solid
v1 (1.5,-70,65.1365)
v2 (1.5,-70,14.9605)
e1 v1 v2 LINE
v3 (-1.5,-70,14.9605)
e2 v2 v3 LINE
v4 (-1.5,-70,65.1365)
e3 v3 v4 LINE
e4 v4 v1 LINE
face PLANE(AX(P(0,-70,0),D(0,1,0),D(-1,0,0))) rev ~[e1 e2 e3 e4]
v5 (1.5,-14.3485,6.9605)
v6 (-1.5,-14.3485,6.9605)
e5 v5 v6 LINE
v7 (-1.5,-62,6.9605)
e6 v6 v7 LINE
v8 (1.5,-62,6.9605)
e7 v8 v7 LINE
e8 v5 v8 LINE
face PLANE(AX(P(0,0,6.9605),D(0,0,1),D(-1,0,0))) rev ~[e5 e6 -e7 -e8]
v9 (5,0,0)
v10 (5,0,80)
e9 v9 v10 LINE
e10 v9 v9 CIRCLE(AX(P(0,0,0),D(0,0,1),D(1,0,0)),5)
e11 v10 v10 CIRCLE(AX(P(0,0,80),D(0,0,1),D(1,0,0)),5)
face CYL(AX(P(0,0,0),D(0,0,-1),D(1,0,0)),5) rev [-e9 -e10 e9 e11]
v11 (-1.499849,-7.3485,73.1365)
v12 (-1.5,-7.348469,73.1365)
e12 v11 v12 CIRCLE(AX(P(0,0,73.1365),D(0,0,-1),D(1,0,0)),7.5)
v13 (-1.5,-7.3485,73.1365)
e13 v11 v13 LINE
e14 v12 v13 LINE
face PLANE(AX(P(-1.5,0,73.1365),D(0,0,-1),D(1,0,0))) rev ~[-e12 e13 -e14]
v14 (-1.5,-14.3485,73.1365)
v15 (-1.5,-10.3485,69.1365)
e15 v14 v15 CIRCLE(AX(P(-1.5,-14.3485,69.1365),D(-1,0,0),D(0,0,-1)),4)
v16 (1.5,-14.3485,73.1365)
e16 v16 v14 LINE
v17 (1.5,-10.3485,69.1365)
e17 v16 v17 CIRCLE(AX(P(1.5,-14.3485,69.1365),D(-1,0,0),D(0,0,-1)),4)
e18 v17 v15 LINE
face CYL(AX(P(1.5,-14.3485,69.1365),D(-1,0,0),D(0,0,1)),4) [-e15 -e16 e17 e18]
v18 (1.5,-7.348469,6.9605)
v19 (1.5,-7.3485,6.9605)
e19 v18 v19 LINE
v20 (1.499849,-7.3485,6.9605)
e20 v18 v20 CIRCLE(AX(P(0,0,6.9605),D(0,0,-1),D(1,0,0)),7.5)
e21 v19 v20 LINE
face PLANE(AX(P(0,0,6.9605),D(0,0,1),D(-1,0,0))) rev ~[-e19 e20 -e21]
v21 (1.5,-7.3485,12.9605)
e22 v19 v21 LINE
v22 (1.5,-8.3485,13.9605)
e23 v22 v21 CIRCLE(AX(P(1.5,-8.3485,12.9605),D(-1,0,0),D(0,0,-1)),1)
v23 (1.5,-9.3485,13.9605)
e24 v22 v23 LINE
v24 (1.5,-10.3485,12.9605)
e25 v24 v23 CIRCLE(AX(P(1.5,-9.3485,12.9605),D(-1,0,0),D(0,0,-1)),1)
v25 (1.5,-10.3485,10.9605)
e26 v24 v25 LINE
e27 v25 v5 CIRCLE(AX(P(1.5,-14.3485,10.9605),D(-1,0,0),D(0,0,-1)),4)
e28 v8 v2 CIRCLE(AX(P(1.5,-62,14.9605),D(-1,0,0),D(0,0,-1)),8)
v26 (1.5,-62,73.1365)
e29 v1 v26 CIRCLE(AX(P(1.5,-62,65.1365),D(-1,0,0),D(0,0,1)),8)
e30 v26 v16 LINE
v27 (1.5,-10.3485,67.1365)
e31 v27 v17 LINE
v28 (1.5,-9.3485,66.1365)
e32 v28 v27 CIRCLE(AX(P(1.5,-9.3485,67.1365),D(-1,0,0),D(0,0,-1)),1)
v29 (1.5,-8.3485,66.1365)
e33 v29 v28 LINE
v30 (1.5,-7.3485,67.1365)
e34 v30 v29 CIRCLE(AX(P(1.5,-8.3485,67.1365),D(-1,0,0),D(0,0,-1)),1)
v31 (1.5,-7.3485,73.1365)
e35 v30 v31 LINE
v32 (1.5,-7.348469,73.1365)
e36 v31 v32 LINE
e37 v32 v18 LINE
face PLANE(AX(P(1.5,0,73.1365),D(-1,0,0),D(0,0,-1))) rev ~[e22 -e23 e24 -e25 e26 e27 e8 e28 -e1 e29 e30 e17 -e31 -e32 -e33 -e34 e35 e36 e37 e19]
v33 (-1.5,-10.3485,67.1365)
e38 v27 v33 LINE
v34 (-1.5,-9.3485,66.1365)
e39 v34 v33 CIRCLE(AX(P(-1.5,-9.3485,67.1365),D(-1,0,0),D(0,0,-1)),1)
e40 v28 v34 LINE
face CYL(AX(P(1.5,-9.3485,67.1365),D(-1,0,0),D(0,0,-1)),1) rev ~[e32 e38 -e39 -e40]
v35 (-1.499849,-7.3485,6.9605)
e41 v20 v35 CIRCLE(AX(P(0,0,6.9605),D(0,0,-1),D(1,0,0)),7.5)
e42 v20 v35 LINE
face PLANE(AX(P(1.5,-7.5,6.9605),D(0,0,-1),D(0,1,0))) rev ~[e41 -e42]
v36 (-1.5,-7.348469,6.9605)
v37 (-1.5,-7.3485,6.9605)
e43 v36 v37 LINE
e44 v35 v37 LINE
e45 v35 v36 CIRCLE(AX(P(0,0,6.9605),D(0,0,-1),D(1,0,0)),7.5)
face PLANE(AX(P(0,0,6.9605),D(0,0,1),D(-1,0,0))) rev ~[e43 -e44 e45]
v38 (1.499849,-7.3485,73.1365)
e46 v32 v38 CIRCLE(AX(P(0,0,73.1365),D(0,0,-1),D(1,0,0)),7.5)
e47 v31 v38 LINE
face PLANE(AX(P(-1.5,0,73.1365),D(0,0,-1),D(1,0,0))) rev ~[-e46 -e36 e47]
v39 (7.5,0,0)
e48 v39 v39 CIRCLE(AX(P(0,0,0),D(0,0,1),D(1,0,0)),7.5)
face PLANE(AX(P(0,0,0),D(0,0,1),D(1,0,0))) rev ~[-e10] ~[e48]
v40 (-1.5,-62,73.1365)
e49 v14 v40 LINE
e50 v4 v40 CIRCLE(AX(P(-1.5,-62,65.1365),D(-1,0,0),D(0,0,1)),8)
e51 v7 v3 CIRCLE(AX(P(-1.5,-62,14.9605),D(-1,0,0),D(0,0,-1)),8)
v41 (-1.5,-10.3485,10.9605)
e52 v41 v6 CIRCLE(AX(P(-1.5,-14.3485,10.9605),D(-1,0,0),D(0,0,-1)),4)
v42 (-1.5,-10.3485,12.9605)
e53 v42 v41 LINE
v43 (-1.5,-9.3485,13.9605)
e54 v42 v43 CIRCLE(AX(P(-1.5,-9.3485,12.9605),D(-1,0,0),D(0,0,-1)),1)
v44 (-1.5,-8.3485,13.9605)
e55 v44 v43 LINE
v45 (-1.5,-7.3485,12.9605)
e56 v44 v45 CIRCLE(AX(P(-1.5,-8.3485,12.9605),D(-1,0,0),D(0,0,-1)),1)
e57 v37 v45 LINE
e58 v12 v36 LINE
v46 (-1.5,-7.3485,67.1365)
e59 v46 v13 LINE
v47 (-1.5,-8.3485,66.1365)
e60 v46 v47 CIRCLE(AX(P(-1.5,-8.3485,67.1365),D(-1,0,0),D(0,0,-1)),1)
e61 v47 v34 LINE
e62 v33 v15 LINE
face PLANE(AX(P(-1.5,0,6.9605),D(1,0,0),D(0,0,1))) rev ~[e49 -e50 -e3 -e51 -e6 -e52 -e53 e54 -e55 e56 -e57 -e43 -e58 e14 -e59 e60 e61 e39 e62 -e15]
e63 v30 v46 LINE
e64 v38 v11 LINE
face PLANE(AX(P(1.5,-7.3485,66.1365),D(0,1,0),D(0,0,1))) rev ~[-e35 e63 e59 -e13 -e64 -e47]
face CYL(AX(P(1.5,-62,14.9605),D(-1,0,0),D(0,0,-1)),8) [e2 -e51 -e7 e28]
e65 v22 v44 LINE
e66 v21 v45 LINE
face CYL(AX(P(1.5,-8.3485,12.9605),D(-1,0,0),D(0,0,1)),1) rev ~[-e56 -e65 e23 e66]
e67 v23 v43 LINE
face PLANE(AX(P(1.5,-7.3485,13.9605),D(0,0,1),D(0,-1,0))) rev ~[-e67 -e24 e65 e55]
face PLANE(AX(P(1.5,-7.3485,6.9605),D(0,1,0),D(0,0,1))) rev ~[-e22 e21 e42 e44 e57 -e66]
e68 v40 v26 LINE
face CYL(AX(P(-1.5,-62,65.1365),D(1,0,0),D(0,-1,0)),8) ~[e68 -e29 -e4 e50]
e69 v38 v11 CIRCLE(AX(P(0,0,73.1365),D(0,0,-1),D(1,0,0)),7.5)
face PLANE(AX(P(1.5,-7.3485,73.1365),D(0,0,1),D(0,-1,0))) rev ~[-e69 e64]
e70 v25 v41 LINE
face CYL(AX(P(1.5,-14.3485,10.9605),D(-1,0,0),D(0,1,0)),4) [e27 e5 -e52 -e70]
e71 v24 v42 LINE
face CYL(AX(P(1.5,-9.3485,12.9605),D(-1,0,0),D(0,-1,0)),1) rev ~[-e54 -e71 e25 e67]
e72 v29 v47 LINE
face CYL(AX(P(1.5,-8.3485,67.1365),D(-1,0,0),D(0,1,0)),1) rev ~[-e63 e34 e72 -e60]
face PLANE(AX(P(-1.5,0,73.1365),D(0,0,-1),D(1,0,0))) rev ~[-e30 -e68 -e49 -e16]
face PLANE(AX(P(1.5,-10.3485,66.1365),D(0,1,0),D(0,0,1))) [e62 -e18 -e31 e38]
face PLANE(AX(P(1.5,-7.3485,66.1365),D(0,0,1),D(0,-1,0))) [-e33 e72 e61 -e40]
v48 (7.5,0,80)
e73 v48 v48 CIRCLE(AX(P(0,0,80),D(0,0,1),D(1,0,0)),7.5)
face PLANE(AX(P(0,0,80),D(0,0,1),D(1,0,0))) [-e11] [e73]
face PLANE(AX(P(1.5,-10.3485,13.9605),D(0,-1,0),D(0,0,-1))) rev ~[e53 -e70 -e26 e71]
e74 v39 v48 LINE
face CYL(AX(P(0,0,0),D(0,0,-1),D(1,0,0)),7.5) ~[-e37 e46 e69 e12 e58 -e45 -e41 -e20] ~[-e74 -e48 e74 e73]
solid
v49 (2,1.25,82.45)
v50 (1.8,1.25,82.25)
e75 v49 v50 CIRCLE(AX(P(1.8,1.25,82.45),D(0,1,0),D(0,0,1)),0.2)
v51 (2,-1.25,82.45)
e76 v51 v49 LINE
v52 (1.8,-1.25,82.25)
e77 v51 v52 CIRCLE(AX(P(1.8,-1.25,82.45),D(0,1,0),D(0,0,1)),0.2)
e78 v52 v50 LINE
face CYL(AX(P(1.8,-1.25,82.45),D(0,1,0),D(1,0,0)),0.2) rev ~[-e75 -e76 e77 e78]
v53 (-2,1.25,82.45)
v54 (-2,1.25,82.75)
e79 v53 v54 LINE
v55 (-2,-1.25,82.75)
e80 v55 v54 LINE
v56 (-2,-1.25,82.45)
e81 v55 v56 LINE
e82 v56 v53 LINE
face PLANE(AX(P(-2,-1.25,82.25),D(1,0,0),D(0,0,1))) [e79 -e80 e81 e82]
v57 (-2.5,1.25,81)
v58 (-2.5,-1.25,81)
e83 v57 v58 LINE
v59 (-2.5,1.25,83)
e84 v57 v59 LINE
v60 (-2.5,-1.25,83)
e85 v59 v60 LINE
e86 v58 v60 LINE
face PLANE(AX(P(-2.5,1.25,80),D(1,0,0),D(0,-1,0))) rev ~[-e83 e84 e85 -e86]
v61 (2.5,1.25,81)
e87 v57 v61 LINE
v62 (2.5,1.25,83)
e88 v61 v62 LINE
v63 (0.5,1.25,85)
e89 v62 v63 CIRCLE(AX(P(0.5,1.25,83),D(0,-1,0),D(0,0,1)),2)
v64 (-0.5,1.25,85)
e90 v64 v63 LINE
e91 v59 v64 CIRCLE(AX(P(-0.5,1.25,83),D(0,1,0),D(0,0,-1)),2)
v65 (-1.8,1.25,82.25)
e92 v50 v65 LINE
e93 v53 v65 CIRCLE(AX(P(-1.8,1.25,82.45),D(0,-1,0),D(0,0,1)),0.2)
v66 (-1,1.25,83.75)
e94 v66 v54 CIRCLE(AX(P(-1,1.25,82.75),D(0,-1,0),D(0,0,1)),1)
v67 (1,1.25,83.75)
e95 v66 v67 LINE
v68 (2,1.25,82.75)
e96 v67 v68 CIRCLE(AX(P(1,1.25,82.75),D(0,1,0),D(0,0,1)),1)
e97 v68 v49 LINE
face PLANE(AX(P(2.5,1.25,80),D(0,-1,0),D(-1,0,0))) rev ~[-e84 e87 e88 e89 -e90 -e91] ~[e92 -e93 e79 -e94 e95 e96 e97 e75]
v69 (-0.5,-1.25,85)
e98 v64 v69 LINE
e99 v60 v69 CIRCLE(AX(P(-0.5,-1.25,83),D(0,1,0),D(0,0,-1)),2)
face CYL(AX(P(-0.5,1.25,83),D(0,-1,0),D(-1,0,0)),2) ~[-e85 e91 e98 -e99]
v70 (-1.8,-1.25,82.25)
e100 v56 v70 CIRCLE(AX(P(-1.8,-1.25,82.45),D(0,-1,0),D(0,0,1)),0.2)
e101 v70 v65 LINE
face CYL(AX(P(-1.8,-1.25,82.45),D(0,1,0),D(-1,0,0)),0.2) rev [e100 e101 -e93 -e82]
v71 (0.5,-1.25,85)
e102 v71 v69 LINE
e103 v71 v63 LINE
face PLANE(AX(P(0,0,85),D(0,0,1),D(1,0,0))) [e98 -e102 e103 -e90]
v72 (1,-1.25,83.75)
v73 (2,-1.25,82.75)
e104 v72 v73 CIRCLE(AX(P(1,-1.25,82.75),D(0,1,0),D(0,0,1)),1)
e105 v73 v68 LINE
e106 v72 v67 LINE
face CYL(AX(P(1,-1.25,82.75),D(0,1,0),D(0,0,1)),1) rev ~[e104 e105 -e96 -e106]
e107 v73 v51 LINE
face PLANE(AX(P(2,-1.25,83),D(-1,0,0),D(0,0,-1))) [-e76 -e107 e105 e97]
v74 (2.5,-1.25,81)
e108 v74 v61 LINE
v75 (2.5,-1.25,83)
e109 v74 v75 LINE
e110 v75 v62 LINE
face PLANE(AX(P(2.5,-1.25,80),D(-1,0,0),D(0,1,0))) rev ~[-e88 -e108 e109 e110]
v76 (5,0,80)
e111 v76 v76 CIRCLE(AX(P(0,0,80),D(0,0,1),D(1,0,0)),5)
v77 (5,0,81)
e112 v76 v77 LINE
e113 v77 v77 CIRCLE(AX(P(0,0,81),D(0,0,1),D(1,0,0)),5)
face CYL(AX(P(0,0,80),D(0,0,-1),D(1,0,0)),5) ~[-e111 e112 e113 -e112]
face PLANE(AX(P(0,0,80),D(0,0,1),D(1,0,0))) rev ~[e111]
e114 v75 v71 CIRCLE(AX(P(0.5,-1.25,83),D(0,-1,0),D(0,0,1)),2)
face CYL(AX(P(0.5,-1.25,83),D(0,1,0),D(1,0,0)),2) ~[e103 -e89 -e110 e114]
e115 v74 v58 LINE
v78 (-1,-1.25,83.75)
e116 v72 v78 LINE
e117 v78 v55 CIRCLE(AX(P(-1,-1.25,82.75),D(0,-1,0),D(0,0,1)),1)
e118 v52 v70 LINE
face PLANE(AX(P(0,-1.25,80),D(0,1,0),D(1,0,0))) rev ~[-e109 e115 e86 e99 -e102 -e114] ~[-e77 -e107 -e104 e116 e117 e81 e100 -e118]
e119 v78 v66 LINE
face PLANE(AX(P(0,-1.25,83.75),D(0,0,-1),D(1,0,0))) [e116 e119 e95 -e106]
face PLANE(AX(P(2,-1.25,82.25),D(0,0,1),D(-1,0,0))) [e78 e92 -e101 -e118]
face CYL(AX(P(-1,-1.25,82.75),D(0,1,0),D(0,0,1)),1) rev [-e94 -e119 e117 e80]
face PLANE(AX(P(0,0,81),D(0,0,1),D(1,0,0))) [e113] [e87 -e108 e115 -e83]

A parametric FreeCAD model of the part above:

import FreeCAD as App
import Part
import Sketcher
Q = App.Units.Quantity


def edges_at(feature, points):
    """Names of the edges that pass closest to the given points."""
    edges = feature.Shape.Edges
    near = lambda p: min(range(len(edges)), key=lambda i: edges[i].distToShape(Part.Vertex(*p))[0])
    return sorted({f"Edge{near(p) + 1}" for p in points})

doc = App.newDocument("Part")
body = doc.addObject("PartDesign::Body", "Body")
body.AllowCompound = True

# Sketch on XY plane
sketch1 = body.newObject("Sketcher::SketchObject", "Sketch")
sketch1.AttachmentSupport = (doc.getObject("XY_Plane"), [""])
sketch1.MapMode = "FlatFace"
sketch1.addGeometry([
    Part.Circle(App.Vector(0, 0, 0), App.Vector(0, 0, 1), 7.5),
    Part.Circle(App.Vector(0, 0, 0), App.Vector(0, 0, 1), 5),
], False)
sketch1.addConstraint([
    Sketcher.Constraint("Coincident", 0, 3, -1, 1),
    Sketcher.Constraint("Coincident", 1, 3, -1, 1),
    Sketcher.Constraint("Diameter", 0, Q("15 mm")),
    Sketcher.Constraint("Diameter", 1, Q("10 mm")),
])
pad1 = body.newObject("PartDesign::Pad", "Pad")
pad1.Profile = sketch1
pad1.Length = 80

# Sketch on XZ plane
sketch2 = body.newObject("Sketcher::SketchObject", "Sketch001")
sketch2.AttachmentSupport = (doc.getObject("XZ_Plane"), [""])
sketch2.MapMode = "FlatFace"
sketch2.addGeometry([
    Part.LineSegment(App.Vector(-1.5, 73.1365, 0), App.Vector(1.5, 73.1365, 0)),
    Part.LineSegment(App.Vector(1.5, 73.1365, 0), App.Vector(1.5, 6.9605, 0)),
    Part.LineSegment(App.Vector(1.5, 6.9605, 0), App.Vector(-1.5, 6.9605, 0)),
    Part.LineSegment(App.Vector(-1.5, 6.9605, 0), App.Vector(-1.5, 73.1365, 0)),
], False)
sketch2.addConstraint([
    Sketcher.Constraint("Coincident", 0, 2, 1, 1),
    Sketcher.Constraint("Coincident", 1, 2, 2, 1),
    Sketcher.Constraint("Coincident", 2, 2, 3, 1),
    Sketcher.Constraint("Coincident", 3, 2, 0, 1),
    Sketcher.Constraint("Horizontal", 0),
    Sketcher.Constraint("Vertical", 1),
    Sketcher.Constraint("Horizontal", 2),
    Sketcher.Constraint("Vertical", 3),
    Sketcher.Constraint("DistanceX", 0, 1, 0, 2, Q("3 mm")),
    Sketcher.Constraint("DistanceX", -1, 1, 0, 2, Q("1.5 mm")),
    Sketcher.Constraint("DistanceY", 1, 2, 1, 1, Q("66.176 mm")),
    Sketcher.Constraint("DistanceY", -1, 1, 0, 2, Q("73.1365 mm")),
])
pad2 = body.newObject("PartDesign::Pad", "Pad001")
pad2.Profile = sketch2
pad2.Type = "TwoLengths"
pad2.Length = 1
pad2.Length2 = 70
pad2.Reversed = True

# Sketch on XY plane
sketch3 = body.newObject("Sketcher::SketchObject", "Sketch002")
sketch3.AttachmentSupport = (doc.getObject("XY_Plane"), [""])
sketch3.MapMode = "FlatFace"
sketch3.AttachmentOffset = App.Placement(App.Vector(0, 0, 80), App.Rotation())
sketch3.addGeometry(Part.Circle(App.Vector(0, 0, 0), App.Vector(0, 0, 1), 5), False)
sketch3.addConstraint([
    Sketcher.Constraint("Coincident", 0, 3, -1, 1),
    Sketcher.Constraint("Diameter", 0, Q("10 mm")),
])
pocket1 = body.newObject("PartDesign::Pocket", "Pocket")
pocket1.Profile = sketch3
pocket1.Length = 80

# Sketch on YZ plane
sketch4 = body.newObject("Sketcher::SketchObject", "Sketch003")
sketch4.AttachmentSupport = (doc.getObject("YZ_Plane"), [""])
sketch4.MapMode = "FlatFace"
sketch4.AttachmentOffset = App.Placement(App.Vector(0, 0, 1.5), App.Rotation())
sketch4.addGeometry([
    Part.LineSegment(App.Vector(-10.3485, 6.9605, 0), App.Vector(-7.3485, 6.9605, 0)),  # 0
    Part.LineSegment(App.Vector(-7.3485, 6.9605, 0), App.Vector(-7.3485, 13.9605, 0)),  # 1
    Part.LineSegment(App.Vector(-7.3485, 13.9605, 0), App.Vector(-10.3485, 13.9605, 0)),  # 2
    Part.LineSegment(App.Vector(-10.3485, 13.9605, 0), App.Vector(-10.3485, 6.9605, 0)),  # 3
    Part.LineSegment(App.Vector(-10.3485, 66.1365, 0), App.Vector(-7.3485, 66.1365, 0)),  # 4
    Part.LineSegment(App.Vector(-7.3485, 66.1365, 0), App.Vector(-7.3485, 73.1365, 0)),  # 5
    Part.LineSegment(App.Vector(-7.3485, 73.1365, 0), App.Vector(-10.3485, 73.1365, 0)),  # 6
    Part.LineSegment(App.Vector(-10.3485, 73.1365, 0), App.Vector(-10.3485, 66.1365, 0)),  # 7
], False)
sketch4.addConstraint([
    Sketcher.Constraint("Coincident", 0, 2, 1, 1),
    Sketcher.Constraint("Coincident", 1, 2, 2, 1),
    Sketcher.Constraint("Coincident", 2, 2, 3, 1),
    Sketcher.Constraint("Coincident", 3, 2, 0, 1),
    Sketcher.Constraint("Coincident", 4, 2, 5, 1),
    Sketcher.Constraint("Coincident", 5, 2, 6, 1),
    Sketcher.Constraint("Coincident", 6, 2, 7, 1),
    Sketcher.Constraint("Coincident", 7, 2, 4, 1),
    Sketcher.Constraint("Horizontal", 0),
    Sketcher.Constraint("Vertical", 1),
    Sketcher.Constraint("Horizontal", 2),
    Sketcher.Constraint("Vertical", 3),
    Sketcher.Constraint("Horizontal", 4),
    Sketcher.Constraint("Vertical", 5),
    Sketcher.Constraint("Horizontal", 6),
    Sketcher.Constraint("Vertical", 7),
    Sketcher.Constraint("Vertical", 1, 2, 4, 2),
    Sketcher.Constraint("Vertical", 3, 2, 6, 2),
    Sketcher.Constraint("Equal", 3, 5),
    Sketcher.Constraint("DistanceX", 0, 1, 0, 2, Q("3 mm")),
    Sketcher.Constraint("DistanceY", 1, 1, 1, 2, Q("7 mm")),
    Sketcher.Constraint("DistanceY", 1, 2, 4, 2, Q("52.176 mm")),
    Sketcher.Constraint("DistanceX", 0, 2, -1, 1, Q("7.3485 mm")),
    Sketcher.Constraint("DistanceY", -1, 1, 0, 2, Q("6.9605 mm")),
])
pocket2 = body.newObject("PartDesign::Pocket", "Pocket001")
pocket2.Profile = sketch4
pocket2.Length = 5
doc.recompute()

fillet = body.newObject("PartDesign::Fillet", "Fillet")
fillet.Base = (pocket2, edges_at(pocket2, [
    (0, -7.348, 66.136),
    (0, -10.348, 66.136),
    (0, -7.348, 13.96),
    (0, -10.348, 13.96),
]))
fillet.Radius = 1
doc.recompute()

fillet2 = body.newObject("PartDesign::Fillet", "Fillet001")
fillet2.Base = (fillet, edges_at(fillet, [(0, -10.348, 6.96), (0, -10.348, 73.136)]))
fillet2.Radius = 4
doc.recompute()

fillet3 = body.newObject("PartDesign::Fillet", "Fillet002")
fillet3.Base = (fillet2, edges_at(fillet2, [(0, -70, 73.136), (0, -70, 6.96)]))
fillet3.Radius = 8

# Sketch on XY plane
sketch5 = body.newObject("Sketcher::SketchObject", "Sketch004")
sketch5.AttachmentSupport = (doc.getObject("XY_Plane"), [""])
sketch5.MapMode = "FlatFace"
sketch5.AttachmentOffset = App.Placement(App.Vector(0, 0, 80), App.Rotation())
sketch5.addGeometry([
    Part.Circle(App.Vector(0, 0, 0), App.Vector(0, 0, 1), 5),  # 0
    Part.LineSegment(App.Vector(-2.5, 1.25, 0), App.Vector(2.5, 1.25, 0)),  # 1
    Part.LineSegment(App.Vector(2.5, 1.25, 0), App.Vector(2.5, -1.25, 0)),  # 2
    Part.LineSegment(App.Vector(2.5, -1.25, 0), App.Vector(-2.5, -1.25, 0)),  # 3
    Part.LineSegment(App.Vector(-2.5, -1.25, 0), App.Vector(-2.5, 1.25, 0)),  # 4
], False)
sketch5.addConstraint([
    Sketcher.Constraint("Coincident", 1, 2, 2, 1),
    Sketcher.Constraint("Coincident", 2, 2, 3, 1),
    Sketcher.Constraint("Coincident", 3, 2, 4, 1),
    Sketcher.Constraint("Coincident", 4, 2, 1, 1),
    Sketcher.Constraint("Horizontal", 1),
    Sketcher.Constraint("Vertical", 2),
    Sketcher.Constraint("Horizontal", 3),
    Sketcher.Constraint("Vertical", 4),
    Sketcher.Constraint("Coincident", 0, 3, -1, 1),
    Sketcher.Constraint("Symmetric", 1, 2, 3, 2, -1, 1),
    Sketcher.Constraint("Diameter", 0, Q("10 mm")),
    Sketcher.Constraint("DistanceX", 1, 1, 1, 2, Q("5 mm")),
    Sketcher.Constraint("DistanceY", 2, 2, 2, 1, Q("2.5 mm")),
])
pad3 = body.newObject("PartDesign::Pad", "Pad002")
pad3.Profile = sketch5
pad3.Length = 1

# Sketch on XY plane
sketch6 = body.newObject("Sketcher::SketchObject", "Sketch005")
sketch6.AttachmentSupport = (doc.getObject("XY_Plane"), [""])
sketch6.MapMode = "FlatFace"
sketch6.AttachmentOffset = App.Placement(App.Vector(0, 0, 80), App.Rotation())
sketch6.addGeometry([
    Part.LineSegment(App.Vector(2.5, -1.25, 0), App.Vector(2.5, 1.25, 0)),
    Part.LineSegment(App.Vector(2.5, 1.25, 0), App.Vector(-2.5, 1.25, 0)),
    Part.LineSegment(App.Vector(-2.5, 1.25, 0), App.Vector(-2.5, -1.25, 0)),
    Part.LineSegment(App.Vector(-2.5, -1.25, 0), App.Vector(2.5, -1.25, 0)),
], False)
sketch6.addConstraint([
    Sketcher.Constraint("Coincident", 0, 2, 1, 1),
    Sketcher.Constraint("Coincident", 1, 2, 2, 1),
    Sketcher.Constraint("Coincident", 2, 2, 3, 1),
    Sketcher.Constraint("Coincident", 3, 2, 0, 1),
    Sketcher.Constraint("Vertical", 0),
    Sketcher.Constraint("Horizontal", 1),
    Sketcher.Constraint("Vertical", 2),
    Sketcher.Constraint("Horizontal", 3),
    Sketcher.Constraint("Symmetric", 0, 2, 2, 2, -1, 1),
    Sketcher.Constraint("DistanceX", 1, 2, 1, 1, Q("5 mm")),
    Sketcher.Constraint("DistanceY", 0, 1, 0, 2, Q("2.5 mm")),
])
pad4 = body.newObject("PartDesign::Pad", "Pad003")
pad4.Profile = sketch6
pad4.Length = 5

# Sketch on XZ plane
sketch7 = body.newObject("Sketcher::SketchObject", "Sketch006")
sketch7.AttachmentSupport = (doc.getObject("XZ_Plane"), [""])
sketch7.MapMode = "FlatFace"
sketch7.AttachmentOffset = App.Placement(App.Vector(0, 0, 1.25), App.Rotation())
sketch7.addGeometry([
    Part.LineSegment(App.Vector(2, 82.25, 0), App.Vector(2, 83.75, 0)),
    Part.LineSegment(App.Vector(2, 83.75, 0), App.Vector(-2, 83.75, 0)),
    Part.LineSegment(App.Vector(-2, 83.75, 0), App.Vector(-2, 82.25, 0)),
    Part.LineSegment(App.Vector(-2, 82.25, 0), App.Vector(2, 82.25, 0)),
], False)
sketch7.addConstraint([
    Sketcher.Constraint("Coincident", 0, 2, 1, 1),
    Sketcher.Constraint("Coincident", 1, 2, 2, 1),
    Sketcher.Constraint("Coincident", 2, 2, 3, 1),
    Sketcher.Constraint("Coincident", 3, 2, 0, 1),
    Sketcher.Constraint("Vertical", 0),
    Sketcher.Constraint("Horizontal", 1),
    Sketcher.Constraint("Vertical", 2),
    Sketcher.Constraint("Horizontal", 3),
    Sketcher.Constraint("DistanceX", 1, 2, 1, 1, Q("4 mm")),
    Sketcher.Constraint("DistanceY", 0, 1, 0, 2, Q("1.5 mm")),
    Sketcher.Constraint("DistanceX", -1, 1, 0, 2, Q("2 mm")),
    Sketcher.Constraint("DistanceY", -1, 1, 0, 2, Q("83.75 mm")),
])
pocket3 = body.newObject("PartDesign::Pocket", "Pocket002")
pocket3.Profile = sketch7
pocket3.Length = 5
doc.recompute()

fillet4 = body.newObject("PartDesign::Fillet", "Fillet003")
fillet4.Base = (pocket3, edges_at(pocket3, [(-2.5, 0, 85), (2.5, 0, 85)]))
fillet4.Radius = 2
doc.recompute()

fillet5 = body.newObject("PartDesign::Fillet", "Fillet004")
fillet5.Base = (fillet4, edges_at(fillet4, [(-2, 0, 83.75)]))
fillet5.Radius = 1
doc.recompute()

fillet6 = body.newObject("PartDesign::Fillet", "Fillet005")
fillet6.Base = (fillet5, edges_at(fillet5, [(2, 0, 83.75)]))
fillet6.Radius = 1
doc.recompute()

fillet7 = body.newObject("PartDesign::Fillet", "Fillet006")
fillet7.Base = (fillet6, edges_at(fillet6, [(2, 0, 82.25)]))
fillet7.Radius = 0.2
doc.recompute()

fillet8 = body.newObject("PartDesign::Fillet", "Fillet007")
fillet8.Base = (fillet7, edges_at(fillet7, [(-2, 0, 82.25)]))
fillet8.Radius = 0.2

doc.recompute()
